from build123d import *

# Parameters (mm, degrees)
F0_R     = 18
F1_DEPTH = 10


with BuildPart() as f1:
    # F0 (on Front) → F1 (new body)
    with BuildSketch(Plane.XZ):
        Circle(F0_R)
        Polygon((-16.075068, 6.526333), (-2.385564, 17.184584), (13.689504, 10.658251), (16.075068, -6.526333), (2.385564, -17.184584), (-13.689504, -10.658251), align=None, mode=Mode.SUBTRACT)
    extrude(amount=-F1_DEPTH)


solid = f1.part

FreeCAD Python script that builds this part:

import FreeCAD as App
import Part
import Sketcher
Q = App.Units.Quantity


def add_polygon(sketch, points):
    """Adds a closed chain of lines whose ends are joined by coincident constraints."""
    first, n = sketch.GeometryCount, len(points)
    for a, b in zip(points, points[1:] + points[:1]):
        sketch.addGeometry(Part.LineSegment(App.Vector(*a, 0), App.Vector(*b, 0)), False)
    for i in range(n):
        sketch.addConstraint(Sketcher.Constraint("Coincident", first + i, 2, first + (i + 1) % n, 1))

doc = App.newDocument("Part")
body = doc.addObject("PartDesign::Body", "Body")

# Sketch on XZ plane
sketch1 = body.newObject("Sketcher::SketchObject", "Sketch")
sketch1.AttachmentSupport = (doc.getObject("XZ_Plane"), [""])
sketch1.MapMode = "FlatFace"
sketch1.addGeometry(Part.Circle(App.Vector(0, 0, 0), App.Vector(0, 0, 1), 18), False)  # 0
add_polygon(sketch1, [(-14, -11), (-16, 7), (-2, 17), (14, 11), (16, -7), (2, -17)])  # lines 1-6
sketch1.addConstraint([
    Sketcher.Constraint("Coincident", 0, 3, -1, 1),
    Sketcher.Constraint("Symmetric", 1, 2, 4, 2, -1, 1),
    Sketcher.Constraint("Symmetric", 2, 2, 5, 2, -1, 1),
    Sketcher.Constraint("Symmetric", 3, 2, 6, 2, -1, 1),
    Sketcher.Constraint("Equal", 1, 2),
    Sketcher.Constraint("Equal", 2, 3),
    Sketcher.Constraint("Diameter", 0, Q("36 mm")),
    Sketcher.Constraint("DistanceX", 1, 2, -1, 1, Q("16.075068 mm")),
    Sketcher.Constraint("DistanceY", -1, 1, 3, 2, Q("10.658251 mm")),
    Sketcher.Constraint("DistanceY", 1, 2, 2, 2, Q("10.658251 mm")),
    Sketcher.Constraint("DistanceX", 5, 2, 3, 2, Q("11.30394 mm")),
])
pad1 = body.newObject("PartDesign::Pad", "Pad")
pad1.Profile = sketch1
pad1.Length = 10
pad1.Reversed = True

doc.recompute()
